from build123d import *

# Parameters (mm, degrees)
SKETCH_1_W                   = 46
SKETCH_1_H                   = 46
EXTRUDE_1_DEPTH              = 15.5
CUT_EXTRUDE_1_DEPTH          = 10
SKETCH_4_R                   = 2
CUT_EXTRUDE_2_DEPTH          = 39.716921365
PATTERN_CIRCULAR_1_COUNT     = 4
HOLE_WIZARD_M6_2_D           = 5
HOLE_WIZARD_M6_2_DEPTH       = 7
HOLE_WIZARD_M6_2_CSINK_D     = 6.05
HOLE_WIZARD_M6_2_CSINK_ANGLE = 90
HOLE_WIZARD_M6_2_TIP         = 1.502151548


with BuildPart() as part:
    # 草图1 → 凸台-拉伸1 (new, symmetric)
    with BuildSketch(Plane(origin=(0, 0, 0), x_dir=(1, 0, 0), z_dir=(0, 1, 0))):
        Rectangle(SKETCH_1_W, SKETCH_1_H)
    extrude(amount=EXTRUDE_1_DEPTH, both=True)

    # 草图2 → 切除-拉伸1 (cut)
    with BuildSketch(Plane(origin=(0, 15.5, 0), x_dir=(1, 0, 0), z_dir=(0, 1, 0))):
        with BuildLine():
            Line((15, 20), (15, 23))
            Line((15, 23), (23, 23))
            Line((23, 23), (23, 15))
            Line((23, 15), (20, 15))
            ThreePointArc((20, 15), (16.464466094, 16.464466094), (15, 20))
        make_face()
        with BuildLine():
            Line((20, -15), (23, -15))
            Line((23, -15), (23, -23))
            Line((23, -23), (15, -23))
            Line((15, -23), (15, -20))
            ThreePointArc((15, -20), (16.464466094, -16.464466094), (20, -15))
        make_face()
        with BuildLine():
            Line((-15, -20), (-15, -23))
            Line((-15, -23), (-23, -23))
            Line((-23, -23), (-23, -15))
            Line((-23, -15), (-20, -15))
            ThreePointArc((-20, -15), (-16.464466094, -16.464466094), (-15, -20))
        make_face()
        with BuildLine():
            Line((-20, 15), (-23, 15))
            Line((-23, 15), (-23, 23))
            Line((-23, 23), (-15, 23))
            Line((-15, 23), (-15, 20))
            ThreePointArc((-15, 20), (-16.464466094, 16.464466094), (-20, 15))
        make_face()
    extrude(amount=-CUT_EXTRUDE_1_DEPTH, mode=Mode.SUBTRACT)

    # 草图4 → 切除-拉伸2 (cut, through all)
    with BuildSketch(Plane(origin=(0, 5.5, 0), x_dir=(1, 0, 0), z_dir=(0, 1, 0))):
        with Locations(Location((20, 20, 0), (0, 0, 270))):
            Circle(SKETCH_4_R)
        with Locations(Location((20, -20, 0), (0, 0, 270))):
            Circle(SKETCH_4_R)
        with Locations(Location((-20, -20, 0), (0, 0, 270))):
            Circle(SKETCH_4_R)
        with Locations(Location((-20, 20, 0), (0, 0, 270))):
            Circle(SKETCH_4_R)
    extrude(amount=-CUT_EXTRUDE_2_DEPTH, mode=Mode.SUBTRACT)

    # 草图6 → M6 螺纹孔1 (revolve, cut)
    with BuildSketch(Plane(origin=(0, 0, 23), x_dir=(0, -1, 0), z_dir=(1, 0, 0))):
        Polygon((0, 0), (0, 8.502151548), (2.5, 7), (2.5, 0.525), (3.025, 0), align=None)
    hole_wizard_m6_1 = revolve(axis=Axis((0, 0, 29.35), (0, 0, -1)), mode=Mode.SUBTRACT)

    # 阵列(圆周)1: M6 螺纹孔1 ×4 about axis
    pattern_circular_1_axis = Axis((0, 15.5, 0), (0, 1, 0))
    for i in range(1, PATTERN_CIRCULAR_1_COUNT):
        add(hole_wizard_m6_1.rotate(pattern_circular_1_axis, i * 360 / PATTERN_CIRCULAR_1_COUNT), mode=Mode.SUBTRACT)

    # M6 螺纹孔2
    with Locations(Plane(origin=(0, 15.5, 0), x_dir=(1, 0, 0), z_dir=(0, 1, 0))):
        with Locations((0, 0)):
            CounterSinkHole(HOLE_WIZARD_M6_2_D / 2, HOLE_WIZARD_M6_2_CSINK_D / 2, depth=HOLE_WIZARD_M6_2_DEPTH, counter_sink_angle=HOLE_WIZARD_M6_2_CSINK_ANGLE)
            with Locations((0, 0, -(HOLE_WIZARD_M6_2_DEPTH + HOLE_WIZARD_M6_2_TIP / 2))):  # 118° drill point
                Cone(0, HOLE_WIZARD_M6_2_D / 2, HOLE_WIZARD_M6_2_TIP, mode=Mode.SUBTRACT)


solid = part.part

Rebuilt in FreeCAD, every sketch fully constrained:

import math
import FreeCAD as App
import Part
import Sketcher
from FreeCAD import Vector
Q = App.Units.Quantity

doc = App.newDocument("Part")
body = doc.addObject("PartDesign::Body", "Body")

# Sketch on XZ plane
sketch1 = body.newObject("Sketcher::SketchObject", "Sketch")
sketch1.AttachmentSupport = (doc.getObject("XZ_Plane"), [""])
sketch1.MapMode = "FlatFace"
sketch1.addGeometry([
    Part.LineSegment(Vector(-23, -23, 0), Vector(-23, 23, 0)),
    Part.LineSegment(Vector(-23, 23, 0), Vector(23, 23, 0)),
    Part.LineSegment(Vector(23, 23, 0), Vector(23, -23, 0)),
    Part.LineSegment(Vector(23, -23, 0), Vector(-23, -23, 0)),
], False)
sketch1.addConstraint([
    Sketcher.Constraint("Coincident", 0, 2, 1, 1),
    Sketcher.Constraint("Coincident", 1, 2, 2, 1),
    Sketcher.Constraint("Coincident", 2, 2, 3, 1),
    Sketcher.Constraint("Coincident", 3, 2, 0, 1),
    Sketcher.Constraint("Vertical", 0),
    Sketcher.Constraint("Horizontal", 1),
    Sketcher.Constraint("Vertical", 2),
    Sketcher.Constraint("Horizontal", 3),
    Sketcher.Constraint("Symmetric", 0, 2, 2, 2, -1, 1),
    Sketcher.Constraint("Equal", 3, 0),
    Sketcher.Constraint("DistanceX", 1, 1, 1, 2, Q("46 mm")),
])
pad1 = body.newObject("PartDesign::Pad", "Pad")
pad1.Profile = sketch1
pad1.Length = 31
pad1.Midplane = True

# Sketch on XZ plane
sketch2 = body.newObject("Sketcher::SketchObject", "Sketch001")
sketch2.AttachmentSupport = (doc.getObject("XZ_Plane"), [""])
sketch2.MapMode = "FlatFace"
sketch2.AttachmentOffset = App.Placement(Vector(0, 0, -15.5), App.Rotation())
sketch2.addGeometry([
    Part.LineSegment(Vector(15, -23, 0), Vector(15, -20, 0)),  # 0
    Part.ArcOfCircle(Part.Circle(Vector(20, -20, 0), Vector(0, 0, 1), 5), math.radians(90), math.radians(180)),  # 1
    Part.LineSegment(Vector(20, -15, 0), Vector(23, -15, 0)),  # 2
    Part.LineSegment(Vector(23, -15, 0), Vector(23, -23, 0)),  # 3
    Part.LineSegment(Vector(23, -23, 0), Vector(15, -23, 0)),  # 4
    Part.LineSegment(Vector(23, 15, 0), Vector(20, 15, 0)),  # 5
    Part.ArcOfCircle(Part.Circle(Vector(20, 20, 0), Vector(0, 0, 1), 5), math.radians(180), math.radians(270)),  # 6
    Part.LineSegment(Vector(15, 20, 0), Vector(15, 23, 0)),  # 7
    Part.LineSegment(Vector(15, 23, 0), Vector(23, 23, 0)),  # 8
    Part.LineSegment(Vector(23, 23, 0), Vector(23, 15, 0)),  # 9
    Part.LineSegment(Vector(-15, 23, 0), Vector(-15, 20, 0)),  # 10
    Part.ArcOfCircle(Part.Circle(Vector(-20, 20, 0), Vector(0, 0, 1), 5), math.radians(-90), math.radians(0)),  # 11
    Part.LineSegment(Vector(-20, 15, 0), Vector(-23, 15, 0)),  # 12
    Part.LineSegment(Vector(-23, 15, 0), Vector(-23, 23, 0)),  # 13
    Part.LineSegment(Vector(-23, 23, 0), Vector(-15, 23, 0)),  # 14
    Part.LineSegment(Vector(-23, -15, 0), Vector(-20, -15, 0)),  # 15
    Part.ArcOfCircle(Part.Circle(Vector(-20, -20, 0), Vector(0, 0, 1), 5), math.radians(0), math.radians(90)),  # 16
    Part.LineSegment(Vector(-15, -20, 0), Vector(-15, -23, 0)),  # 17
    Part.LineSegment(Vector(-15, -23, 0), Vector(-23, -23, 0)),  # 18
    Part.LineSegment(Vector(-23, -23, 0), Vector(-23, -15, 0)),  # 19
], False)
sketch2.addConstraint([
    Sketcher.Constraint("Tangent", 0, 2, 1, 2),
    Sketcher.Constraint("Tangent", 1, 1, 2, 1),
    Sketcher.Constraint("Coincident", 2, 2, 3, 1),
    Sketcher.Constraint("Coincident", 3, 2, 4, 1),
    Sketcher.Constraint("Coincident", 4, 2, 0, 1),
    Sketcher.Constraint("Tangent", 5, 2, 6, 2),
    Sketcher.Constraint("Tangent", 6, 1, 7, 1),
    Sketcher.Constraint("Coincident", 7, 2, 8, 1),
    Sketcher.Constraint("Coincident", 8, 2, 9, 1),
    Sketcher.Constraint("Coincident", 9, 2, 5, 1),
    Sketcher.Constraint("Tangent", 10, 2, 11, 2),
    Sketcher.Constraint("Tangent", 11, 1, 12, 1),
    Sketcher.Constraint("Coincident", 12, 2, 13, 1),
    Sketcher.Constraint("Coincident", 13, 2, 14, 1),
    Sketcher.Constraint("Coincident", 14, 2, 10, 1),
    Sketcher.Constraint("Tangent", 15, 2, 16, 2),
    Sketcher.Constraint("Tangent", 16, 1, 17, 1),
    Sketcher.Constraint("Coincident", 17, 2, 18, 1),
    Sketcher.Constraint("Coincident", 18, 2, 19, 1),
    Sketcher.Constraint("Coincident", 19, 2, 15, 1),
    Sketcher.Constraint("Vertical", 0),
    Sketcher.Constraint("Horizontal", 2),
    Sketcher.Constraint("Vertical", 3),
    Sketcher.Constraint("Horizontal", 4),
    Sketcher.Constraint("Horizontal", 5),
    Sketcher.Constraint("Vertical", 7),
    Sketcher.Constraint("Horizontal", 8),
    Sketcher.Constraint("Vertical", 9),
    Sketcher.Constraint("Vertical", 10),
    Sketcher.Constraint("Horizontal", 12),
    Sketcher.Constraint("Vertical", 13),
    Sketcher.Constraint("Horizontal", 14),
    Sketcher.Constraint("Horizontal", 15),
    Sketcher.Constraint("Vertical", 17),
    Sketcher.Constraint("Horizontal", 18),
    Sketcher.Constraint("Vertical", 19),
    Sketcher.Constraint("Equal", 1, 6),
    Sketcher.Constraint("Equal", 6, 11),
    Sketcher.Constraint("Equal", 11, 16),
    Sketcher.Constraint("Symmetric", 1, 3, 11, 3, -1, 1),
    Sketcher.Constraint("Symmetric", 6, 3, 16, 3, -1, 1),
    Sketcher.Constraint("Symmetric", 3, 2, 13, 2, -1, 1),
    Sketcher.Constraint("Symmetric", 8, 2, 18, 2, -1, 1),
    Sketcher.Constraint("Symmetric", 6, 3, 11, 3, -2),
    Sketcher.Constraint("Symmetric", 8, 2, 13, 2, -2),
    Sketcher.Constraint("Equal", 15, 0),
    Sketcher.Constraint("Radius", 1, Q("5 mm")),
    Sketcher.Constraint("DistanceX", 2, 1, 2, 2, Q("3 mm")),
    Sketcher.Constraint("DistanceX", -1, 1, 1, 3, Q("20 mm")),
    Sketcher.Constraint("DistanceY", 1, 3, -1, 1, Q("20 mm")),
])
pocket1 = body.newObject("PartDesign::Pocket", "Pocket")
pocket1.Profile = sketch2
pocket1.Length = 10
pocket1.Reversed = True

# Sketch on XZ plane
sketch3 = body.newObject("Sketcher::SketchObject", "Sketch002")
sketch3.AttachmentSupport = (doc.getObject("XZ_Plane"), [""])
sketch3.MapMode = "FlatFace"
sketch3.AttachmentOffset = App.Placement(Vector(0, 0, -5.5), App.Rotation())
sketch3.addGeometry([
    Part.Circle(Vector(20, -20, 0), Vector(0, 0, 1), 2),
    Part.Circle(Vector(20, 20, 0), Vector(0, 0, 1), 2),
    Part.Circle(Vector(-20, 20, 0), Vector(0, 0, 1), 2),
    Part.Circle(Vector(-20, -20, 0), Vector(0, 0, 1), 2),
], False)
sketch3.addConstraint([
    Sketcher.Constraint("Equal", 0, 1),
    Sketcher.Constraint("Equal", 1, 2),
    Sketcher.Constraint("Equal", 2, 3),
    Sketcher.Constraint("Symmetric", 0, 3, 2, 3, -1, 1),
    Sketcher.Constraint("Symmetric", 1, 3, 3, 3, -1, 1),
    Sketcher.Constraint("Symmetric", 1, 3, 2, 3, -2),
    Sketcher.Constraint("Diameter", 0, Q("4 mm")),
    Sketcher.Constraint("DistanceX", -1, 1, 0, 3, Q("20 mm")),
    Sketcher.Constraint("DistanceY", 0, 3, -1, 1, Q("20 mm")),
])
pocket2 = body.newObject("PartDesign::Pocket", "Pocket001")
pocket2.Profile = sketch3
pocket2.Type = "ThroughAll"
pocket2.Reversed = True

# Sketch on YZ plane
sketch4 = body.newObject("Sketcher::SketchObject", "Sketch003")
sketch4.AttachmentSupport = (doc.getObject("YZ_Plane"), [""])
sketch4.MapMode = "FlatFace"
sketch4.addGeometry([
    Part.LineSegment(Vector(0, 14.5, 0), Vector(0, 23, 0)),  # 0
    Part.LineSegment(Vector(0, 23, 0), Vector(-3, 23, 0)),  # 1
    Part.LineSegment(Vector(-3, 23, 0), Vector(-2.5, 22.5, 0)),  # 2
    Part.LineSegment(Vector(-2.5, 22.5, 0), Vector(-2.5, 16, 0)),  # 3
    Part.LineSegment(Vector(-2.5, 16, 0), Vector(0, 14.5, 0)),  # 4
], False)
sketch4.addConstraint([
    Sketcher.Constraint("Coincident", 0, 2, 1, 1),
    Sketcher.Constraint("Coincident", 1, 2, 2, 1),
    Sketcher.Constraint("Coincident", 2, 2, 3, 1),
    Sketcher.Constraint("Coincident", 3, 2, 4, 1),
    Sketcher.Constraint("Coincident", 4, 2, 0, 1),
    Sketcher.Constraint("Vertical", 0),
    Sketcher.Constraint("Horizontal", 1),
    Sketcher.Constraint("Vertical", 3),
    Sketcher.Constraint("PointOnObject", 0, 2, -2),
    Sketcher.Constraint("Angle", 2, Q("-45 deg")),
    Sketcher.Constraint("Angle", 4, Q("-31 deg")),
    Sketcher.Constraint("DistanceY", -1, 1, 0, 2, Q("23 mm")),
    Sketcher.Constraint("DistanceY", -1, 1, 3, 2, Q("16 mm")),
    Sketcher.Constraint("DistanceX", 2, 2, -1, 1, Q("2.5 mm")),
    Sketcher.Constraint("DistanceX", 1, 2, 1, 1, Q("3.025 mm")),
])
groove = body.newObject("PartDesign::Groove", "Groove")
groove.Profile = sketch4
groove.ReferenceAxis = (sketch4, ["V_Axis"])
groove.Angle = 360
doc.recompute()

polarpattern = body.newObject("PartDesign::PolarPattern", "PolarPattern")
polarpattern.Originals = [groove]
polarpattern.Axis = (doc.getObject("Y_Axis"), [""])
polarpattern.Angle = 360
polarpattern.Occurrences = 4
body.Tip = polarpattern

# Sketch on XZ plane
sketch5 = body.newObject("Sketcher::SketchObject", "Sketch004")
sketch5.AttachmentSupport = (doc.getObject("XZ_Plane"), [""])
sketch5.MapMode = "FlatFace"
sketch5.AttachmentOffset = App.Placement(Vector(0, 0, -15.5), App.Rotation())
sketch5.addGeometry(Part.Circle(Vector(0, 0, 0), Vector(0, 0, 1), 2.5), False)
sketch5.addConstraint([
    Sketcher.Constraint("Coincident", 0, 3, -1, 1),
    Sketcher.Constraint("Diameter", 0, Q("5 mm")),
])
doc.recompute()
hole = body.newObject("PartDesign::Hole", "Hole")
hole.Profile = sketch5
hole.ThreadType = "None"
hole.Diameter = 5
hole.DepthType = "Dimension"
hole.Depth = 7
hole.DrillPoint = "Angled"
hole.DrillPointAngle = 118
hole.HoleCutType = "Countersink"
hole.HoleCutDiameter = 6.05
hole.HoleCutCountersinkAngle = 90
hole.Reversed = True

doc.recompute()
